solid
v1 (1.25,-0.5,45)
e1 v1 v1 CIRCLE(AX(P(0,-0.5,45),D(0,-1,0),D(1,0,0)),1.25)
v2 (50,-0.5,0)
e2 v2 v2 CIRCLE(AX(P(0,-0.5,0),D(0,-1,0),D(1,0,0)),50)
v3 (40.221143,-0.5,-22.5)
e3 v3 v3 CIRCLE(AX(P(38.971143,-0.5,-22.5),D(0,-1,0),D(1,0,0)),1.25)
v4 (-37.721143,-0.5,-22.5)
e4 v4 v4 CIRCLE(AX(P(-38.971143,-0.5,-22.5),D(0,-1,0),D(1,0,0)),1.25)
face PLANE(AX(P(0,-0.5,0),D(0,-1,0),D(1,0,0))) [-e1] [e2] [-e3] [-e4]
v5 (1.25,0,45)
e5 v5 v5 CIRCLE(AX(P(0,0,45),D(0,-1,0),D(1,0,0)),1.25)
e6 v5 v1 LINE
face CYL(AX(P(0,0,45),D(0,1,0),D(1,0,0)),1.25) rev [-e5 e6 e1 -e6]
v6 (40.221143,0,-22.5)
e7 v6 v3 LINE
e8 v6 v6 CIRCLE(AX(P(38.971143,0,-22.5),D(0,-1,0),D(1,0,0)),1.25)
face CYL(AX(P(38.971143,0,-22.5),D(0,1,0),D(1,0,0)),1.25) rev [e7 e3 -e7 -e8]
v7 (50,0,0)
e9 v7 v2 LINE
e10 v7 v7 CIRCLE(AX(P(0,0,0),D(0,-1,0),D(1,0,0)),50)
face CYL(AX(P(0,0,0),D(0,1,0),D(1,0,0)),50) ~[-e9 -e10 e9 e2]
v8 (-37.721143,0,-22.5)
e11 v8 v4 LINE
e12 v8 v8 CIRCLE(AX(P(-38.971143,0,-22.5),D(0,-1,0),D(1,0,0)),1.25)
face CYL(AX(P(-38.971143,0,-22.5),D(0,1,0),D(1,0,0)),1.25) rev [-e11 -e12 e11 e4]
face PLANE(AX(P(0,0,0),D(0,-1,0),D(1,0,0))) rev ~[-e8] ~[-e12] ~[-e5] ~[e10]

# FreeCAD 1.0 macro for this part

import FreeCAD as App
import Part
import Sketcher

doc = App.newDocument("Part")
body = doc.addObject("PartDesign::Body", "Body")

# Sketch on XZ plane
sketch1 = body.newObject("Sketcher::SketchObject", "Sketch")
sketch1.AttachmentSupport = (doc.getObject("XZ_Plane"), [""])
sketch1.MapMode = "FlatFace"
sketch1.addGeometry(Part.Circle(App.Vector(0, 0, 0), App.Vector(0, 0, 1), 50), False)
sketch1.addGeometry(Part.Circle(App.Vector(-39, -22.5, 0), App.Vector(0, 0, 1), 1.2), False)
sketch1.addGeometry(Part.Circle(App.Vector(39, -22.5, 0), App.Vector(0, 0, 1), 1.2), False)
sketch1.addGeometry(Part.Circle(App.Vector(0, 45, 0), App.Vector(0, 0, 1), 1.2), False)
sketch1.addConstraint(Sketcher.Constraint("Coincident", 0, 3, -1, 1))
sketch1.addConstraint(Sketcher.Constraint("Equal", 1, 2))
sketch1.addConstraint(Sketcher.Constraint("Equal", 2, 3))
sketch1.addConstraint(Sketcher.Constraint("Symmetric", 1, 3, 2, 3, -2))
sketch1.addConstraint(Sketcher.Constraint("PointOnObject", 3, 3, -2))
sketch1.addConstraint(Sketcher.Constraint("Diameter", 0, 100.0))
sketch1.addConstraint(Sketcher.Constraint("Diameter", 1, 2.5))
sketch1.addConstraint(Sketcher.Constraint("DistanceY", -1, 1, 3, 3, 45.0))
sketch1.addConstraint(Sketcher.Constraint("DistanceY", 1, 3, -1, 1, 22.5))
sketch1.addConstraint(Sketcher.Constraint("DistanceX", 1, 3, -1, 1, 38.971143))
pad1 = body.newObject("PartDesign::Pad", "Pad")
pad1.Profile = sketch1
pad1.Length = 0.5

doc.recompute()
